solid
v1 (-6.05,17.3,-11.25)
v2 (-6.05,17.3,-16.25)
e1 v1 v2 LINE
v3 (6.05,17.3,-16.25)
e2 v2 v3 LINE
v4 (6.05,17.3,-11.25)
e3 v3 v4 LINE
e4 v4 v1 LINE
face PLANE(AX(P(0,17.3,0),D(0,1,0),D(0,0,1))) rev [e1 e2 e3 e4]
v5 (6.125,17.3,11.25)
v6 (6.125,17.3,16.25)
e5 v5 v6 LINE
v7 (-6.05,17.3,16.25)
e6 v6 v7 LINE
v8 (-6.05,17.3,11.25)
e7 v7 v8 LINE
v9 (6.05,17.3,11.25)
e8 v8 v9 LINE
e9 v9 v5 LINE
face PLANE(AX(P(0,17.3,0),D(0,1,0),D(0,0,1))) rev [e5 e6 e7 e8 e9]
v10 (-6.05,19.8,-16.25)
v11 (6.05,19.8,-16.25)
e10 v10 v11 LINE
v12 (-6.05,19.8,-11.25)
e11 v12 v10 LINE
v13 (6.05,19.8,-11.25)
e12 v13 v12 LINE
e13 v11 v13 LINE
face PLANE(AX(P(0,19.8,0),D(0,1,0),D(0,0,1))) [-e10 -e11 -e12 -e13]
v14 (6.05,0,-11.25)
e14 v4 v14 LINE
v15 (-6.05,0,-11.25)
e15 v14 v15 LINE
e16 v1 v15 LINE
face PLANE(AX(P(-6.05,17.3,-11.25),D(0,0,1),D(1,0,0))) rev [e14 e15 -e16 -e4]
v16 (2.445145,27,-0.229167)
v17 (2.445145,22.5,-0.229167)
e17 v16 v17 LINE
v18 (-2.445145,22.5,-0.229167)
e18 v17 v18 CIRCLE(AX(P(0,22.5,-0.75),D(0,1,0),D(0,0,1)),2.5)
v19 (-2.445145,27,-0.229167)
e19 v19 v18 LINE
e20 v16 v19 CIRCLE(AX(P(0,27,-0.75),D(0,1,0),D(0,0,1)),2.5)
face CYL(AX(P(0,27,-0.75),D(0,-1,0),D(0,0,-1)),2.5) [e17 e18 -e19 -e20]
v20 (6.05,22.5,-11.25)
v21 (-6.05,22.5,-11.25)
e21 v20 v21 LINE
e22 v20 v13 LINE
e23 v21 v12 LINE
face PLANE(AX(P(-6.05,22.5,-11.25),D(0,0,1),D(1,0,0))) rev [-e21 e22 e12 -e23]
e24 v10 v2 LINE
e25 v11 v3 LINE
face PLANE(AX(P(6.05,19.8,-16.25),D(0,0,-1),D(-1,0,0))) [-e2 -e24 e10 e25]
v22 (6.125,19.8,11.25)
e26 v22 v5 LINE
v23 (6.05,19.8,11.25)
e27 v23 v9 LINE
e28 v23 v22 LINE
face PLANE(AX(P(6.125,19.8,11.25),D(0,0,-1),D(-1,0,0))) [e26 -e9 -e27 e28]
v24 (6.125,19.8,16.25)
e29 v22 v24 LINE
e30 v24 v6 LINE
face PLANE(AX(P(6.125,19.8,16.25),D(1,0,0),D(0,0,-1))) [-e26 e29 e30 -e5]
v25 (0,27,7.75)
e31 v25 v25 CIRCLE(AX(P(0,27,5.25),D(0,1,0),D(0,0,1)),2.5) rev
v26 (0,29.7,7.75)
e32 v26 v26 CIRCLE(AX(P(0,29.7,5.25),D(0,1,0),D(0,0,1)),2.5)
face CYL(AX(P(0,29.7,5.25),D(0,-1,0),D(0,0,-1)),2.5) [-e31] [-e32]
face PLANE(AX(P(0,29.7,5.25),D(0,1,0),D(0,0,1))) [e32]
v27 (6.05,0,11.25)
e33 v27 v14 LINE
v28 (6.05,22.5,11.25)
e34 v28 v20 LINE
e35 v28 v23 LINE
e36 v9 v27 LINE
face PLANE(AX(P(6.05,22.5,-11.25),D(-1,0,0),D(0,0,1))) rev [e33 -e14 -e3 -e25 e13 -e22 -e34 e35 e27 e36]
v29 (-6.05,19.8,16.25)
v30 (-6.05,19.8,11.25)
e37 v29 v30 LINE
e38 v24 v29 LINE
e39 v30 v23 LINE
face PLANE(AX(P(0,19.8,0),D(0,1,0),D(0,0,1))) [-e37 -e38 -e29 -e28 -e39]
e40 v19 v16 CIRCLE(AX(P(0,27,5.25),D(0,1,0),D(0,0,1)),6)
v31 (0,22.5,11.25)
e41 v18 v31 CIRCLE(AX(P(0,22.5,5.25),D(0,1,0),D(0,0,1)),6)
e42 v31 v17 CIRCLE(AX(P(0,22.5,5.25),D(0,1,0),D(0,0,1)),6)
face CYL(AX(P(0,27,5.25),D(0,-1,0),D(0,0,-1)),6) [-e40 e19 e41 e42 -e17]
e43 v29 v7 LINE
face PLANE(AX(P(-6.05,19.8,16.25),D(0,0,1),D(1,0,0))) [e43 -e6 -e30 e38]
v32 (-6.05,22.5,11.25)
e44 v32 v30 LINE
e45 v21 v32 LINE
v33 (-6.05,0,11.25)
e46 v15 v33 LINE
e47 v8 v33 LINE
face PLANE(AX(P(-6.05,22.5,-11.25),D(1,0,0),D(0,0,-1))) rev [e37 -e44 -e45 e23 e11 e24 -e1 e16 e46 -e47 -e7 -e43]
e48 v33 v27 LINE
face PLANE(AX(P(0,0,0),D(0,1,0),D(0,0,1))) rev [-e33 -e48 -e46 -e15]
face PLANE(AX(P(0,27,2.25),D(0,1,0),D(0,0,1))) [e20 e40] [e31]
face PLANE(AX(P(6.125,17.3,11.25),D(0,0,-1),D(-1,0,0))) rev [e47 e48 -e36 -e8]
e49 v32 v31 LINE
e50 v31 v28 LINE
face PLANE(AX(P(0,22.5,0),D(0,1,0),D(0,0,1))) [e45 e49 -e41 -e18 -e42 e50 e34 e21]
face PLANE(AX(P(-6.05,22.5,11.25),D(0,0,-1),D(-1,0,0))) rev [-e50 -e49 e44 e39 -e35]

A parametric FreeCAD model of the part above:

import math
import FreeCAD as App
import Part
import Sketcher
Q = App.Units.Quantity


def add_polygon(sketch, points):
    """Adds a closed chain of lines whose ends are joined by coincident constraints."""
    first, n = sketch.GeometryCount, len(points)
    for a, b in zip(points, points[1:] + points[:1]):
        sketch.addGeometry(Part.LineSegment(App.Vector(*a, 0), App.Vector(*b, 0)), False)
    for i in range(n):
        sketch.addConstraint(Sketcher.Constraint("Coincident", first + i, 2, first + (i + 1) % n, 1))

doc = App.newDocument("Part")
body = doc.addObject("PartDesign::Body", "Body")

sketch1 = body.newObject("Sketcher::SketchObject", "Sketch")
sketch1.AttachmentSupport = (doc.getObject("XZ_Plane"), [""])
sketch1.MapMode = "FlatFace"
add_polygon(sketch1, [(-6, -11), (-6, 11), (6, 11), (6, -11)])
sketch1.addConstraint(Sketcher.Constraint("Vertical", 0))
sketch1.addConstraint(Sketcher.Constraint("Horizontal", 1))
sketch1.addConstraint(Sketcher.Constraint("Vertical", 2))
sketch1.addConstraint(Sketcher.Constraint("Horizontal", 3))
sketch1.addConstraint(Sketcher.Constraint("Symmetric", 0, 2, 2, 2, -1, 1))
sketch1.addConstraint(Sketcher.Constraint("DistanceX", 1, 1, 1, 2, Q("12.1 mm")))
sketch1.addConstraint(Sketcher.Constraint("DistanceY", 0, 1, 0, 2, Q("22.5 mm")))
pad1 = body.newObject("PartDesign::Pad", "Pad")
pad1.Profile = sketch1
pad1.Length = 22.5
pad1.Reversed = True

sketch2 = body.newObject("Sketcher::SketchObject", "Sketch001")
sketch2.AttachmentSupport = (doc.getObject("XZ_Plane"), [""])
sketch2.MapMode = "FlatFace"
sketch2.AttachmentOffset = App.Placement(App.Vector(0, 0, -22.5), App.Rotation())
sketch2.addGeometry(Part.ArcOfCircle(Part.Circle(App.Vector(0, 5.2, 0), App.Vector(0, 0, 1), 6), math.radians(-66), math.radians(246)), False)
sketch2.addGeometry(Part.ArcOfCircle(Part.Circle(App.Vector(0, -0.8, 0), App.Vector(0, 0, 1), 2.5), math.radians(168), math.radians(372)), False)
sketch2.addConstraint(Sketcher.Constraint("Coincident", 0, 1, 1, 2))
sketch2.addConstraint(Sketcher.Constraint("Coincident", 1, 1, 0, 2))
sketch2.addConstraint(Sketcher.Constraint("Symmetric", 0, 1, 1, 1, -2))
sketch2.addConstraint(Sketcher.Constraint("Radius", 0, Q("6 mm")))
sketch2.addConstraint(Sketcher.Constraint("Radius", 1, Q("2.5 mm")))
sketch2.addConstraint(Sketcher.Constraint("DistanceY", 1, 3, 0, 3, Q("6 mm")))
sketch2.addConstraint(Sketcher.Constraint("DistanceY", -1, 1, 0, 3, Q("5.25 mm")))
pad2 = body.newObject("PartDesign::Pad", "Pad001")
pad2.Profile = sketch2
pad2.Length = 4.5
pad2.Reversed = True

sketch3 = body.newObject("Sketcher::SketchObject", "Sketch002")
sketch3.AttachmentSupport = (doc.getObject("XZ_Plane"), [""])
sketch3.MapMode = "FlatFace"
sketch3.AttachmentOffset = App.Placement(App.Vector(0, 0, -22.5), App.Rotation())
sketch3.addGeometry(Part.Circle(App.Vector(0, 5.2, 0), App.Vector(0, 0, 1), 2.5), False)
sketch3.addConstraint(Sketcher.Constraint("PointOnObject", 0, 3, -2))
sketch3.addConstraint(Sketcher.Constraint("Diameter", 0, Q("5 mm")))
sketch3.addConstraint(Sketcher.Constraint("DistanceY", -1, 1, 0, 3, Q("5.25 mm")))
pad3 = body.newObject("PartDesign::Pad", "Pad002")
pad3.Profile = sketch3
pad3.Length = 7.2
pad3.Reversed = True

sketch4 = body.newObject("Sketcher::SketchObject", "Sketch003")
sketch4.AttachmentSupport = (doc.getObject("XY_Plane"), [""])
sketch4.MapMode = "FlatFace"
sketch4.AttachmentOffset = App.Placement(App.Vector(0, 0, 11.25), App.Rotation())
sketch4.addGeometry(Part.Circle(App.Vector(0, 1.3, 0), App.Vector(0, 0, 1), 1.3), False)
sketch4.addGeometry(Part.Circle(App.Vector(-2.6, 1.3, 0), App.Vector(0, 0, 1), 1.3), False)
sketch4.addGeometry(Part.Circle(App.Vector(2.6, 1.3, 0), App.Vector(0, 0, 1), 1.3), False)
sketch4.addConstraint(Sketcher.Constraint("Equal", 0, 1))
sketch4.addConstraint(Sketcher.Constraint("Equal", 1, 2))
sketch4.addConstraint(Sketcher.Constraint("Symmetric", 1, 3, 2, 3, -2))
sketch4.addConstraint(Sketcher.Constraint("PointOnObject", 0, 3, -2))
sketch4.addConstraint(Sketcher.Constraint("Horizontal", 0, 3, 1, 3))
sketch4.addConstraint(Sketcher.Constraint("Diameter", 0, Q("2.54 mm")))
sketch4.addConstraint(Sketcher.Constraint("DistanceX", 1, 3, -1, 1, Q("2.6 mm")))
sketch4.addConstraint(Sketcher.Constraint("DistanceY", -1, 1, 0, 3, Q("1.27 mm")))
pad4 = body.newObject("PartDesign::Pad", "Pad003")
pad4.Profile = sketch4
pad4.Length = 3

sketch5 = body.newObject("Sketcher::SketchObject", "Sketch004")
sketch5.AttachmentSupport = (doc.getObject("XZ_Plane"), [""])
sketch5.MapMode = "FlatFace"
add_polygon(sketch5, [(-6, 16), (-6, 11), (6, 11), (6, 16)])
add_polygon(sketch5, [(-6, -11), (-6, -16), (6, -16), (6, -11)])
sketch5.addConstraint(Sketcher.Constraint("Vertical", 0))
sketch5.addConstraint(Sketcher.Constraint("Horizontal", 1))
sketch5.addConstraint(Sketcher.Constraint("Vertical", 2))
sketch5.addConstraint(Sketcher.Constraint("Horizontal", 3))
sketch5.addConstraint(Sketcher.Constraint("Vertical", 4))
sketch5.addConstraint(Sketcher.Constraint("Horizontal", 5))
sketch5.addConstraint(Sketcher.Constraint("Vertical", 6))
sketch5.addConstraint(Sketcher.Constraint("Horizontal", 7))
sketch5.addConstraint(Sketcher.Constraint("Symmetric", 3, 2, 5, 2, -1, 1))
sketch5.addConstraint(Sketcher.Constraint("Symmetric", 0, 2, 7, 2, -1))
sketch5.addConstraint(Sketcher.Constraint("DistanceY", 0, 2, 0, 1, Q("5 mm")))
sketch5.addConstraint(Sketcher.Constraint("DistanceX", 5, 1, 5, 2, Q("12.1 mm")))
sketch5.addConstraint(Sketcher.Constraint("DistanceY", 4, 2, 0, 2, Q("27.5 mm")))
sketch5.addConstraint(Sketcher.Constraint("DistanceX", 1, 1, 1, 2, Q("12.175 mm")))
pad5 = body.newObject("PartDesign::Pad", "Pad004")
pad5.Profile = sketch5
pad5.Length = 19.8
pad5.Reversed = True

sketch6 = body.newObject("Sketcher::SketchObject", "Sketch005")
sketch6.AttachmentSupport = (doc.getObject("XZ_Plane"), [""])
sketch6.MapMode = "FlatFace"
add_polygon(sketch6, [(-6, 16), (-6, 11), (6, 11), (6, 16)])
add_polygon(sketch6, [(-6, -11), (-6, -16), (6, -16), (6, -11)])
sketch6.addConstraint(Sketcher.Constraint("Vertical", 0))
sketch6.addConstraint(Sketcher.Constraint("Horizontal", 1))
sketch6.addConstraint(Sketcher.Constraint("Vertical", 2))
sketch6.addConstraint(Sketcher.Constraint("Horizontal", 3))
sketch6.addConstraint(Sketcher.Constraint("Vertical", 4))
sketch6.addConstraint(Sketcher.Constraint("Horizontal", 5))
sketch6.addConstraint(Sketcher.Constraint("Vertical", 6))
sketch6.addConstraint(Sketcher.Constraint("Horizontal", 7))
sketch6.addConstraint(Sketcher.Constraint("Symmetric", 3, 2, 5, 2, -1, 1))
sketch6.addConstraint(Sketcher.Constraint("Symmetric", 0, 2, 7, 2, -1))
sketch6.addConstraint(Sketcher.Constraint("DistanceY", 0, 2, 0, 1, Q("5 mm")))
sketch6.addConstraint(Sketcher.Constraint("DistanceX", 5, 1, 5, 2, Q("12.1 mm")))
sketch6.addConstraint(Sketcher.Constraint("DistanceY", 4, 2, 0, 2, Q("27.5 mm")))
sketch6.addConstraint(Sketcher.Constraint("DistanceX", 1, 1, 1, 2, Q("12.175 mm")))
pocket1 = body.newObject("PartDesign::Pocket", "Pocket")
pocket1.Profile = sketch6
pocket1.Length = 17.3

doc.recompute()
